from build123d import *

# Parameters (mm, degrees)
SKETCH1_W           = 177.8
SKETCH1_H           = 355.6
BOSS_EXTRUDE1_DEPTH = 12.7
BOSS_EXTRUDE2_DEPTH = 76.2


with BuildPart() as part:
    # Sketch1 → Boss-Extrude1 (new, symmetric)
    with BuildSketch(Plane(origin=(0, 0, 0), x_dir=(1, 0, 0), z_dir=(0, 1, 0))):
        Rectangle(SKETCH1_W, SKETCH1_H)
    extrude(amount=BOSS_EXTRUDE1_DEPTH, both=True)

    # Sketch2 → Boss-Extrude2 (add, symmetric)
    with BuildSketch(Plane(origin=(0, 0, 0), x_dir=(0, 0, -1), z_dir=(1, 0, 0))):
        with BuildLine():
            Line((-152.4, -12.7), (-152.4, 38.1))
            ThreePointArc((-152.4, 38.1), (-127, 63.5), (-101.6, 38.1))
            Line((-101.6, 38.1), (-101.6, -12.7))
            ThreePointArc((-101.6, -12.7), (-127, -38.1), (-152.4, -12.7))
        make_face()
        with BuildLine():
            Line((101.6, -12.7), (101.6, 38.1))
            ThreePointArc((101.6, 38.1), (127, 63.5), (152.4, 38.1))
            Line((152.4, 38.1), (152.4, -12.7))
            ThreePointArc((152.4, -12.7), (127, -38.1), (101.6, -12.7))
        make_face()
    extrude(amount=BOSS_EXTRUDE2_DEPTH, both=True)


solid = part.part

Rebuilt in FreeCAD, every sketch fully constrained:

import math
import FreeCAD as App
import Part
import Sketcher
from FreeCAD import Vector
Q = App.Units.Quantity


def add_polygon(sketch, points):
    """Adds a closed chain of lines whose ends are joined by coincident constraints."""
    first, n = sketch.GeometryCount, len(points)
    for a, b in zip(points, points[1:] + points[:1]):
        sketch.addGeometry(Part.LineSegment(App.Vector(*a, 0), App.Vector(*b, 0)), False)
    for i in range(n):
        sketch.addConstraint(Sketcher.Constraint("Coincident", first + i, 2, first + (i + 1) % n, 1))

doc = App.newDocument("Part")
params = doc.addObject("Spreadsheet::Sheet", "Params")
for row, (alias, value) in enumerate([
    ("sketch1_width", "7 in"),
    ("sketch1_height", "14 in"),
    ("pad1_length", "1 in"),
    ("sketch2_radius", "1 in"),
    ("sketch2_width", "2 in"),
    ("pad2_length", "6 in"),
], start=1):
    params.set(f"A{row}", alias)
    params.set(f"B{row}", "=" + value)
    params.setAlias(f"B{row}", alias)

body = doc.addObject("PartDesign::Body", "Body")

# Sketch on XZ plane
sketch1 = body.newObject("Sketcher::SketchObject", "Sketch")
sketch1.AttachmentSupport = (doc.getObject("XZ_Plane"), [""])
sketch1.MapMode = "FlatFace"
add_polygon(sketch1, [(-88.9, -177.8), (-88.9, 177.8), (88.9, 177.8), (88.9, -177.8)])  # lines 0-3
sketch1.addConstraint(Sketcher.Constraint("Vertical", 0))
sketch1.addConstraint(Sketcher.Constraint("Horizontal", 1))
sketch1.addConstraint(Sketcher.Constraint("Vertical", 2))
sketch1.addConstraint(Sketcher.Constraint("Horizontal", 3))
sketch1.addConstraint(Sketcher.Constraint("Symmetric", 0, 2, 2, 2, -1, 1))
sketch1.addConstraint(Sketcher.Constraint("DistanceX", 1, 1, 1, 2, Q("7 in")))
sketch1.addConstraint(Sketcher.Constraint("DistanceY", 0, 1, 0, 2, Q("14 in")))
sketch1.setExpression("Constraints[9]", "Params.sketch1_width")
sketch1.setExpression("Constraints[10]", "Params.sketch1_height")
pad1 = body.newObject("PartDesign::Pad", "Pad")
pad1.Profile = sketch1
pad1.setExpression("Length", "Params.pad1_length")
pad1.Midplane = True

# Sketch on YZ plane
sketch2 = body.newObject("Sketcher::SketchObject", "Sketch001")
sketch2.AttachmentSupport = (doc.getObject("YZ_Plane"), [""])
sketch2.MapMode = "FlatFace"
sketch2.addGeometry(Part.LineSegment(Vector(38.1, 152.4, 0), Vector(-12.7, 152.4, 0)), False)
sketch2.addGeometry(Part.ArcOfCircle(Part.Circle(Vector(-12.7, 127, 0), Vector(0, 0, 1), 25.4), math.radians(90), math.radians(270)), False)
sketch2.addGeometry(Part.LineSegment(Vector(-12.7, 101.6, 0), Vector(38.1, 101.6, 0)), False)
sketch2.addGeometry(Part.ArcOfCircle(Part.Circle(Vector(38.1, 127, 0), Vector(0, 0, 1), 25.4), math.radians(-90), math.radians(90)), False)
sketch2.addGeometry(Part.LineSegment(Vector(38.1, -101.6, 0), Vector(-12.7, -101.6, 0)), False)
sketch2.addGeometry(Part.ArcOfCircle(Part.Circle(Vector(-12.7, -127, 0), Vector(0, 0, 1), 25.4), math.radians(90), math.radians(270)), False)
sketch2.addGeometry(Part.LineSegment(Vector(-12.7, -152.4, 0), Vector(38.1, -152.4, 0)), False)
sketch2.addGeometry(Part.ArcOfCircle(Part.Circle(Vector(38.1, -127, 0), Vector(0, 0, 1), 25.4), math.radians(-90), math.radians(90)), False)
sketch2.addConstraint(Sketcher.Constraint("Tangent", 0, 2, 1, 1))
sketch2.addConstraint(Sketcher.Constraint("Tangent", 1, 2, 2, 1))
sketch2.addConstraint(Sketcher.Constraint("Tangent", 2, 2, 3, 1))
sketch2.addConstraint(Sketcher.Constraint("Tangent", 3, 2, 0, 1))
sketch2.addConstraint(Sketcher.Constraint("Tangent", 4, 2, 5, 1))
sketch2.addConstraint(Sketcher.Constraint("Tangent", 5, 2, 6, 1))
sketch2.addConstraint(Sketcher.Constraint("Tangent", 6, 2, 7, 1))
sketch2.addConstraint(Sketcher.Constraint("Tangent", 7, 2, 4, 1))
sketch2.addConstraint(Sketcher.Constraint("Horizontal", 0))
sketch2.addConstraint(Sketcher.Constraint("Horizontal", 2))
sketch2.addConstraint(Sketcher.Constraint("Horizontal", 4))
sketch2.addConstraint(Sketcher.Constraint("Horizontal", 6))
sketch2.addConstraint(Sketcher.Constraint("Equal", 3, 5))
sketch2.addConstraint(Sketcher.Constraint("Symmetric", 1, 3, 5, 3, -1))
sketch2.addConstraint(Sketcher.Constraint("Vertical", 3, 3, 7, 3))
sketch2.addConstraint(Sketcher.Constraint("Radius", 1, Q("1 in")))
sketch2.addConstraint(Sketcher.Constraint("DistanceX", 0, 2, 0, 1, Q("2 in")))
sketch2.addConstraint(Sketcher.Constraint("DistanceY", -1, 1, 1, 3, Q("5 in")))
sketch2.addConstraint(Sketcher.Constraint("DistanceX", 1, 3, -1, 1, Q("0.5 in")))
sketch2.setExpression("Constraints[15]", "Params.sketch2_radius")
sketch2.setExpression("Constraints[16]", "Params.sketch2_width")
pad2 = body.newObject("PartDesign::Pad", "Pad001")
pad2.Profile = sketch2
pad2.setExpression("Length", "Params.pad2_length")
pad2.Midplane = True

doc.recompute()
